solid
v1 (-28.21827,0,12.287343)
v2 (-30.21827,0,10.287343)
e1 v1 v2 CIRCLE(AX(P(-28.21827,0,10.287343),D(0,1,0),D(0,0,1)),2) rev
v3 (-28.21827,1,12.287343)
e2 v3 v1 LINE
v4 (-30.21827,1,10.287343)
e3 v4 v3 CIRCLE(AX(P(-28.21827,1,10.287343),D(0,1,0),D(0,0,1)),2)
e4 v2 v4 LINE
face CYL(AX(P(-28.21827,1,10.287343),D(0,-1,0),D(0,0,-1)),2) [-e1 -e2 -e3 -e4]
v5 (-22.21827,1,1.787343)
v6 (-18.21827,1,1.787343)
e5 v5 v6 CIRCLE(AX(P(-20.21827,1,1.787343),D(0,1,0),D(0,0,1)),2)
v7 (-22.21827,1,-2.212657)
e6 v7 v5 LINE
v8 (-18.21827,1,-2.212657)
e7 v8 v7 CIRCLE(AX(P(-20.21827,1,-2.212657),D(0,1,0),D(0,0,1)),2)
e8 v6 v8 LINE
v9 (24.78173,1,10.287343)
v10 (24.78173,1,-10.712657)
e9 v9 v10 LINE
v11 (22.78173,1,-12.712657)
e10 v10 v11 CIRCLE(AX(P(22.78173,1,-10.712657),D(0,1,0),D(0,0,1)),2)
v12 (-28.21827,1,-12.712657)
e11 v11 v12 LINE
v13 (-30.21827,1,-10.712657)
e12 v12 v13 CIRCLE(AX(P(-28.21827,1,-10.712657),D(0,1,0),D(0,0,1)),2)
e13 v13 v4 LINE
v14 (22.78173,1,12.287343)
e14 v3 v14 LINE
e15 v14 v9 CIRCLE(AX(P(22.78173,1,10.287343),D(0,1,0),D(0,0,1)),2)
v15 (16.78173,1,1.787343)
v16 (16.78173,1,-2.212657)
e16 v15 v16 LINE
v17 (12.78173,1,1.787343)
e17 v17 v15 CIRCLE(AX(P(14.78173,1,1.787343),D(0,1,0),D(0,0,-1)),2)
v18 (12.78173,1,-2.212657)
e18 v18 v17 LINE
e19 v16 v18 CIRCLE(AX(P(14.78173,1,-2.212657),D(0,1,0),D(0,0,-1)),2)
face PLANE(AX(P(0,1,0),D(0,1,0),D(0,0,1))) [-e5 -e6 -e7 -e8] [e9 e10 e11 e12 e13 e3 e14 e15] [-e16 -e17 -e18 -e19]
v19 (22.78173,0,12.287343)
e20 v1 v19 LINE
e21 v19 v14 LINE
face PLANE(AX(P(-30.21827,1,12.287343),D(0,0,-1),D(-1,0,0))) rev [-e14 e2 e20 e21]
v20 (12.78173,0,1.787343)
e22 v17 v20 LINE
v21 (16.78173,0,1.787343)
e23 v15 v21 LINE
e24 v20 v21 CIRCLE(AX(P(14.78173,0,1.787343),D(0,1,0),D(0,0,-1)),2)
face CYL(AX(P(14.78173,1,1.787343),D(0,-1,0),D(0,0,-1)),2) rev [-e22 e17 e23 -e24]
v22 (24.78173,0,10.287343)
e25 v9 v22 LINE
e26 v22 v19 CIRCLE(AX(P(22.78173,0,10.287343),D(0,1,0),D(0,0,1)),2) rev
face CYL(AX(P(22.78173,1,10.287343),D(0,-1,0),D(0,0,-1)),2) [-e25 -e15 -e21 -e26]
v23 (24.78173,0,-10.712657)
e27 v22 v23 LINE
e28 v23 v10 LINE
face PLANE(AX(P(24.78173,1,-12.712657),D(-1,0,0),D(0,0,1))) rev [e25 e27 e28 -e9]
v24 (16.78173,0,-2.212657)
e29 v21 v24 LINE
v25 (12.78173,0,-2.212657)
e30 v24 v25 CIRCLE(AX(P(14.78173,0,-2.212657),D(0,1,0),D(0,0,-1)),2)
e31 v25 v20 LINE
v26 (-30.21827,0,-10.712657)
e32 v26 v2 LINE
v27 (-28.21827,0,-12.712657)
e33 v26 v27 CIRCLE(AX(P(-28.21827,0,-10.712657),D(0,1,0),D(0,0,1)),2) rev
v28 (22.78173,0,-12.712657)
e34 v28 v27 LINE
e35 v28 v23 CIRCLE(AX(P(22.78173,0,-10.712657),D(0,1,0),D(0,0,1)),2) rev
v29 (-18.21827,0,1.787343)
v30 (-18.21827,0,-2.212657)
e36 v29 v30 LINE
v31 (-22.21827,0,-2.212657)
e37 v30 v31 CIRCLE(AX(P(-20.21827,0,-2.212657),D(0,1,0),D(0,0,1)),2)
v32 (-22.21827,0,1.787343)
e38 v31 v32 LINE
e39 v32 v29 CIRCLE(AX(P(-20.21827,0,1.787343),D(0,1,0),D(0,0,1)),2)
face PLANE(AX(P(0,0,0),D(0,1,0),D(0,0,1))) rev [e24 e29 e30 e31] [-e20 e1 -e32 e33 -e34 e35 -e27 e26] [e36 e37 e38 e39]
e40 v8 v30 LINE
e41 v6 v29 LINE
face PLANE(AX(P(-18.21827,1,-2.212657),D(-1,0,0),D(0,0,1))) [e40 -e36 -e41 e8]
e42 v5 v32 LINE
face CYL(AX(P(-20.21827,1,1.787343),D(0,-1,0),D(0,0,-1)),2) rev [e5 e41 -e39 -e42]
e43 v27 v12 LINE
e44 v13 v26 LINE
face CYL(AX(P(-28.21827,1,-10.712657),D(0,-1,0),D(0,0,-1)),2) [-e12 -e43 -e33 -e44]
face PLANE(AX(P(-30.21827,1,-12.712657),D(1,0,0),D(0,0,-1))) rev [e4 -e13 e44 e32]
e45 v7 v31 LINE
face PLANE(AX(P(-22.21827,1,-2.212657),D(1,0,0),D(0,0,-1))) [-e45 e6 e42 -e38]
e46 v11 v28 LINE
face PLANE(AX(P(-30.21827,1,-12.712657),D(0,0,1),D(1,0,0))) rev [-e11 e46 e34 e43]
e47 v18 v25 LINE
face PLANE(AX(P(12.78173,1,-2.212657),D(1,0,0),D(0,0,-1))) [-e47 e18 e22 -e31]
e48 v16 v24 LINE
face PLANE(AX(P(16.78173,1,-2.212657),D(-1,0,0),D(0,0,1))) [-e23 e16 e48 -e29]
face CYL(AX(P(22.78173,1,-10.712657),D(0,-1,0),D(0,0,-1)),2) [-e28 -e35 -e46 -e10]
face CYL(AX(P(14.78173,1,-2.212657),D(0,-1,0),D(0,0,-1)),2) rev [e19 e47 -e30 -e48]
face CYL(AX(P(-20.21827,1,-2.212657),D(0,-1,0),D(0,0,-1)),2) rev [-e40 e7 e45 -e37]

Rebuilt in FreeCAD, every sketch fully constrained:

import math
import FreeCAD as App
import Part
import Sketcher

V = App.Vector
Q = App.Units.Quantity


def edges_at(feature, points):
    """Names of the edges that pass closest to the given points."""
    edges = feature.Shape.Edges
    near = lambda p: min(range(len(edges)), key=lambda i: edges[i].distToShape(Part.Vertex(*p))[0])
    return sorted({f"Edge{near(p) + 1}" for p in points})

doc = App.newDocument("Part")
params = doc.addObject("Spreadsheet::Sheet", "Params")
for row, (alias, value) in enumerate([
    ("sketch1_radius", "2 mm"),
    ("sketch1_width", "55 mm"),
    ("sketch1_height", "25 mm"),
    ("sketch1_height2", "4 mm"),
    ("pad1_length", "1 mm"),
    ("fillet_radius", "2 mm"),
], start=1):
    params.set(f"A{row}", alias)
    params.set(f"B{row}", "=" + value)
    params.setAlias(f"B{row}", alias)

body = doc.addObject("PartDesign::Body", "Body")

sketch1 = body.newObject("Sketcher::SketchObject", "Sketch")
sketch1.AttachmentSupport = (doc.getObject("XZ_Plane"), [""])
sketch1.MapMode = "FlatFace"
sketch1.addGeometry([
    Part.LineSegment(V(-30.2, -12.7, 0), V(-30.2, 12.3, 0)),
    Part.LineSegment(V(-30.2, 12.3, 0), V(24.8, 12.3, 0)),
    Part.LineSegment(V(24.8, 12.3, 0), V(24.8, -12.7, 0)),
    Part.LineSegment(V(24.8, -12.7, 0), V(-30.2, -12.7, 0)),
    Part.LineSegment(V(12.8, 1.8, 0), V(12.8, -2.2, 0)),
    Part.ArcOfCircle(Part.Circle(V(14.8, -2.2, 0), V(0, 0, 1), 2), math.radians(180), math.radians(360)),
    Part.LineSegment(V(16.8, -2.2, 0), V(16.8, 1.8, 0)),
    Part.ArcOfCircle(Part.Circle(V(14.8, 1.8, 0), V(0, 0, 1), 2), math.radians(0), math.radians(180)),
    Part.ArcOfCircle(Part.Circle(V(-20.2, -2.2, 0), V(0, 0, 1), 2), math.radians(180), math.radians(360)),
    Part.LineSegment(V(-18.2, -2.2, 0), V(-18.2, 1.8, 0)),
    Part.ArcOfCircle(Part.Circle(V(-20.2, 1.8, 0), V(0, 0, 1), 2), math.radians(0), math.radians(180)),
    Part.LineSegment(V(-22.2, 1.8, 0), V(-22.2, -2.2, 0)),
], False)
sketch1.addConstraint([
    Sketcher.Constraint("Coincident", 0, 2, 1, 1),
    Sketcher.Constraint("Coincident", 1, 2, 2, 1),
    Sketcher.Constraint("Coincident", 2, 2, 3, 1),
    Sketcher.Constraint("Coincident", 3, 2, 0, 1),
    Sketcher.Constraint("Tangent", 4, 2, 5, 1),
    Sketcher.Constraint("Tangent", 5, 2, 6, 1),
    Sketcher.Constraint("Tangent", 6, 2, 7, 1),
    Sketcher.Constraint("Tangent", 7, 2, 4, 1),
    Sketcher.Constraint("Tangent", 8, 2, 9, 1),
    Sketcher.Constraint("Tangent", 9, 2, 10, 1),
    Sketcher.Constraint("Tangent", 10, 2, 11, 1),
    Sketcher.Constraint("Tangent", 11, 2, 8, 1),
    Sketcher.Constraint("Vertical", 0),
    Sketcher.Constraint("Horizontal", 1),
    Sketcher.Constraint("Vertical", 2),
    Sketcher.Constraint("Horizontal", 3),
    Sketcher.Constraint("Vertical", 4),
    Sketcher.Constraint("Vertical", 6),
    Sketcher.Constraint("Vertical", 9),
    Sketcher.Constraint("Vertical", 11),
    Sketcher.Constraint("Equal", 7, 8),
    Sketcher.Constraint("Horizontal", 5, 3, 8, 3),
    Sketcher.Constraint("Horizontal", 7, 3, 10, 3),
    Sketcher.Constraint("Radius", 5, Q("2 mm")),
    Sketcher.Constraint("DistanceX", 1, 1, 1, 2, Q("55 mm")),
    Sketcher.Constraint("DistanceY", 0, 1, 0, 2, Q("25 mm")),
    Sketcher.Constraint("DistanceY", 4, 2, 4, 1, Q("4 mm")),
    Sketcher.Constraint("DistanceX", 8, 3, 5, 3, Q("35 mm")),
    Sketcher.Constraint("DistanceX", 0, 2, 10, 3, Q("10 mm")),
    Sketcher.Constraint("DistanceY", 10, 3, 0, 2, Q("10.5 mm")),
    Sketcher.Constraint("DistanceX", -1, 1, 5, 3, Q("14.78173 mm")),
    Sketcher.Constraint("DistanceY", 5, 3, -1, 1, Q("2.212657 mm")),
])
sketch1.setExpression("Constraints[23]", "Params.sketch1_radius")
sketch1.setExpression("Constraints[24]", "Params.sketch1_width")
sketch1.setExpression("Constraints[25]", "Params.sketch1_height")
sketch1.setExpression("Constraints[26]", "Params.sketch1_height2")
pad1 = body.newObject("PartDesign::Pad", "Pad")
pad1.Profile = sketch1
pad1.setExpression("Length", "Params.pad1_length")
pad1.Reversed = True
doc.recompute()

fillet = body.newObject("PartDesign::Fillet", "Fillet")
fillet.Base = (pad1, edges_at(pad1, [
    (24.782, 0.5, 12.287),
    (-30.218, 0.5, 12.287),
    (-30.218, 0.5, -12.713),
    (24.782, 0.5, -12.713),
]))
fillet.setExpression("Radius", "Params.fillet_radius")

doc.recompute()
